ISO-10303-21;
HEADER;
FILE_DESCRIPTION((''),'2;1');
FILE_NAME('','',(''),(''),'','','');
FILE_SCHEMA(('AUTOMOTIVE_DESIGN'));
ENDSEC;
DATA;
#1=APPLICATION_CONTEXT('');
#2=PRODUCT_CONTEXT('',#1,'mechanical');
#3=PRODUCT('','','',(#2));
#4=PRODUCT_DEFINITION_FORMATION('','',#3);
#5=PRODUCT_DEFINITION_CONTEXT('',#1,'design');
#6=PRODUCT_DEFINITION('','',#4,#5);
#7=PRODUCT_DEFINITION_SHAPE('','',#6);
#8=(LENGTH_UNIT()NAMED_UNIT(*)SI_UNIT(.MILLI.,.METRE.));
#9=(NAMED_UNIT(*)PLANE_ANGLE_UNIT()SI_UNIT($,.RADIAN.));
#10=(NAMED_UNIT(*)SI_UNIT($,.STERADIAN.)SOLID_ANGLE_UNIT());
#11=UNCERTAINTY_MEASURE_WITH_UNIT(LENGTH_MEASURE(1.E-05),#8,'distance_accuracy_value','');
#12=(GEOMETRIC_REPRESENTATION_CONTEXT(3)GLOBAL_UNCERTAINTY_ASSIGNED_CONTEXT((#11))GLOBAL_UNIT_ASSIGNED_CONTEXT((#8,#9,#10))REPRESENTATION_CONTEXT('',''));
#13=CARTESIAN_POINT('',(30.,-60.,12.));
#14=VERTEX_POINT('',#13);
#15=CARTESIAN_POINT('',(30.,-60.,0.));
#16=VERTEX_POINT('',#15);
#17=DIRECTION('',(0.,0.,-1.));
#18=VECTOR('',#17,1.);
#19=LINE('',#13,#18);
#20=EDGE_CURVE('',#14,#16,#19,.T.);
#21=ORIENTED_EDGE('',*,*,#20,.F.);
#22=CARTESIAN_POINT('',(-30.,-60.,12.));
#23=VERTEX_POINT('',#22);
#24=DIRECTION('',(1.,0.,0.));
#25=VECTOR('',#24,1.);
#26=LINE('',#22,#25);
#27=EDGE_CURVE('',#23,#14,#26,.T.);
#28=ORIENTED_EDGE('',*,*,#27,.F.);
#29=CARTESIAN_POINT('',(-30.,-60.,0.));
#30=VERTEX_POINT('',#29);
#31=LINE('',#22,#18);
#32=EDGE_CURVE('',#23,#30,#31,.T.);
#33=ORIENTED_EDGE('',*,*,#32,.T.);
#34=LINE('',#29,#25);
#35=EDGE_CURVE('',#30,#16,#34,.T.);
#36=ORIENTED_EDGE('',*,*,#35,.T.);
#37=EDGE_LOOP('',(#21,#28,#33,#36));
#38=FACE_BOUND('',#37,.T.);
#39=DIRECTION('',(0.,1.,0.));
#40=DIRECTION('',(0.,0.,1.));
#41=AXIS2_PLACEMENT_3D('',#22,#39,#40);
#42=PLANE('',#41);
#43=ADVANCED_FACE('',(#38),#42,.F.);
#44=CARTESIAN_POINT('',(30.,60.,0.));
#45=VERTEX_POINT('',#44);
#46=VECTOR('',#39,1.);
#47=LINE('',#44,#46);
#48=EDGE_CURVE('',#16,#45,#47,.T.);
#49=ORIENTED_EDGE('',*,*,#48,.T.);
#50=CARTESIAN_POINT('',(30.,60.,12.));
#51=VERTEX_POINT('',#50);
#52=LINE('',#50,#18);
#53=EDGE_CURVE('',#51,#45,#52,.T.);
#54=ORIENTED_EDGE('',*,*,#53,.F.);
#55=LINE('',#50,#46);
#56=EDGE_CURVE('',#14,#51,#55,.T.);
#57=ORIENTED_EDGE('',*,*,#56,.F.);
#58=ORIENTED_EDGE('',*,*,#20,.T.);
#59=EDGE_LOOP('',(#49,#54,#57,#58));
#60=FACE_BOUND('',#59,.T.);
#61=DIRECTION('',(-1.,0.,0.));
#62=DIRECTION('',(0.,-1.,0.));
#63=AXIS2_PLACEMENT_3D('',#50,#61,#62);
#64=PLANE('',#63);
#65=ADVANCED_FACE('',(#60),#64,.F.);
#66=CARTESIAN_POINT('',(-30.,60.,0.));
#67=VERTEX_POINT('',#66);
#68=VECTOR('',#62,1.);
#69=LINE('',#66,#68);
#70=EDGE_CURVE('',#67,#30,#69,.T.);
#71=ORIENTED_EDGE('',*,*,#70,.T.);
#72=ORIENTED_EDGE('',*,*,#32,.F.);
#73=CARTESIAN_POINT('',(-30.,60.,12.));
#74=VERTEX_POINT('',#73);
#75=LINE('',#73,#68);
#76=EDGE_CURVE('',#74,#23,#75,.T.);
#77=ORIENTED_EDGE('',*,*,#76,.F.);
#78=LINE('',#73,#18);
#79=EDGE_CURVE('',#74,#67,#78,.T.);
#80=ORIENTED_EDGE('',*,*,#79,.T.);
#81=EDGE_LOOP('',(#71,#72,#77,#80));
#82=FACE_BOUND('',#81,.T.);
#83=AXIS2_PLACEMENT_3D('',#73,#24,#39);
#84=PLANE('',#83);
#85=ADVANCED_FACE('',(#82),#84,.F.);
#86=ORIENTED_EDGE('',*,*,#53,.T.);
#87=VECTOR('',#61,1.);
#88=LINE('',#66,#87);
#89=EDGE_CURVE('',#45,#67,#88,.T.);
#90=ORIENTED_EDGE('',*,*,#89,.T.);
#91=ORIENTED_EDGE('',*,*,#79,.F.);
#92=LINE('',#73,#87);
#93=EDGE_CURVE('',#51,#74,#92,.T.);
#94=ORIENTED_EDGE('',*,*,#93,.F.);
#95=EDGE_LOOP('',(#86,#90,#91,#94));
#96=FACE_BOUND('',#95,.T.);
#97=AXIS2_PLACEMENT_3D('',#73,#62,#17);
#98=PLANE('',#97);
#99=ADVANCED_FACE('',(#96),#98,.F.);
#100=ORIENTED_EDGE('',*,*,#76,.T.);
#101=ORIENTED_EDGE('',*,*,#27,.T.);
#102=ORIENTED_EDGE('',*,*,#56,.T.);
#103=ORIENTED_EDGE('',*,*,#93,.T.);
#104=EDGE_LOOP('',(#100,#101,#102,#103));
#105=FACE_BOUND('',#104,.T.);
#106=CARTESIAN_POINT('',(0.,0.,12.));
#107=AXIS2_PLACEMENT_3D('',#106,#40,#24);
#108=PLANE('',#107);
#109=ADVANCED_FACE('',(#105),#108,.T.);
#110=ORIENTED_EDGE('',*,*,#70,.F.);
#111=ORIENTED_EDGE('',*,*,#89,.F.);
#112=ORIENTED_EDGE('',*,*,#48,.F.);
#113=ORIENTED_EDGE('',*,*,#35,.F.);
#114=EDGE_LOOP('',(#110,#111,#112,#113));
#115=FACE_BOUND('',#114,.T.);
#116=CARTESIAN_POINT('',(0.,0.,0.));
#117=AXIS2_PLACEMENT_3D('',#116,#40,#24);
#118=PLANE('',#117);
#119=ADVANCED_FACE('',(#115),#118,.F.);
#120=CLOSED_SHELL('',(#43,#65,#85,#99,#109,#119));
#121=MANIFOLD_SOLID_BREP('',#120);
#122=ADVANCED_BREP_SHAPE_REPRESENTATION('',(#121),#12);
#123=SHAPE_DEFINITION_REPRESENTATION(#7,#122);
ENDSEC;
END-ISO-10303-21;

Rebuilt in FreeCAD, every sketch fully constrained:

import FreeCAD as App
import Part
import Sketcher
Q = App.Units.Quantity


def add_polygon(sketch, points):
    """Adds a closed chain of lines whose ends are joined by coincident constraints."""
    first, n = sketch.GeometryCount, len(points)
    for a, b in zip(points, points[1:] + points[:1]):
        sketch.addGeometry(Part.LineSegment(App.Vector(*a, 0), App.Vector(*b, 0)), False)
    for i in range(n):
        sketch.addConstraint(Sketcher.Constraint("Coincident", first + i, 2, first + (i + 1) % n, 1))

doc = App.newDocument("Part")
body = doc.addObject("PartDesign::Body", "Body")

sketch1 = body.newObject("Sketcher::SketchObject", "Sketch")
sketch1.AttachmentSupport = (doc.getObject("XY_Plane"), [""])
sketch1.MapMode = "FlatFace"
add_polygon(sketch1, [(-30, 60), (-30, -60), (30, -60), (30, 60)])
sketch1.addConstraint([
    Sketcher.Constraint("Vertical", 0),
    Sketcher.Constraint("Horizontal", 1),
    Sketcher.Constraint("Vertical", 2),
    Sketcher.Constraint("Horizontal", 3),
    Sketcher.Constraint("Symmetric", 0, 2, 2, 2, -1, 1),
    Sketcher.Constraint("DistanceX", 1, 1, 1, 2, Q("60 mm")),
    Sketcher.Constraint("DistanceY", 0, 2, 0, 1, Q("120 mm")),
])
pad1 = body.newObject("PartDesign::Pad", "Pad")
pad1.Profile = sketch1
pad1.Length = 12

doc.recompute()
